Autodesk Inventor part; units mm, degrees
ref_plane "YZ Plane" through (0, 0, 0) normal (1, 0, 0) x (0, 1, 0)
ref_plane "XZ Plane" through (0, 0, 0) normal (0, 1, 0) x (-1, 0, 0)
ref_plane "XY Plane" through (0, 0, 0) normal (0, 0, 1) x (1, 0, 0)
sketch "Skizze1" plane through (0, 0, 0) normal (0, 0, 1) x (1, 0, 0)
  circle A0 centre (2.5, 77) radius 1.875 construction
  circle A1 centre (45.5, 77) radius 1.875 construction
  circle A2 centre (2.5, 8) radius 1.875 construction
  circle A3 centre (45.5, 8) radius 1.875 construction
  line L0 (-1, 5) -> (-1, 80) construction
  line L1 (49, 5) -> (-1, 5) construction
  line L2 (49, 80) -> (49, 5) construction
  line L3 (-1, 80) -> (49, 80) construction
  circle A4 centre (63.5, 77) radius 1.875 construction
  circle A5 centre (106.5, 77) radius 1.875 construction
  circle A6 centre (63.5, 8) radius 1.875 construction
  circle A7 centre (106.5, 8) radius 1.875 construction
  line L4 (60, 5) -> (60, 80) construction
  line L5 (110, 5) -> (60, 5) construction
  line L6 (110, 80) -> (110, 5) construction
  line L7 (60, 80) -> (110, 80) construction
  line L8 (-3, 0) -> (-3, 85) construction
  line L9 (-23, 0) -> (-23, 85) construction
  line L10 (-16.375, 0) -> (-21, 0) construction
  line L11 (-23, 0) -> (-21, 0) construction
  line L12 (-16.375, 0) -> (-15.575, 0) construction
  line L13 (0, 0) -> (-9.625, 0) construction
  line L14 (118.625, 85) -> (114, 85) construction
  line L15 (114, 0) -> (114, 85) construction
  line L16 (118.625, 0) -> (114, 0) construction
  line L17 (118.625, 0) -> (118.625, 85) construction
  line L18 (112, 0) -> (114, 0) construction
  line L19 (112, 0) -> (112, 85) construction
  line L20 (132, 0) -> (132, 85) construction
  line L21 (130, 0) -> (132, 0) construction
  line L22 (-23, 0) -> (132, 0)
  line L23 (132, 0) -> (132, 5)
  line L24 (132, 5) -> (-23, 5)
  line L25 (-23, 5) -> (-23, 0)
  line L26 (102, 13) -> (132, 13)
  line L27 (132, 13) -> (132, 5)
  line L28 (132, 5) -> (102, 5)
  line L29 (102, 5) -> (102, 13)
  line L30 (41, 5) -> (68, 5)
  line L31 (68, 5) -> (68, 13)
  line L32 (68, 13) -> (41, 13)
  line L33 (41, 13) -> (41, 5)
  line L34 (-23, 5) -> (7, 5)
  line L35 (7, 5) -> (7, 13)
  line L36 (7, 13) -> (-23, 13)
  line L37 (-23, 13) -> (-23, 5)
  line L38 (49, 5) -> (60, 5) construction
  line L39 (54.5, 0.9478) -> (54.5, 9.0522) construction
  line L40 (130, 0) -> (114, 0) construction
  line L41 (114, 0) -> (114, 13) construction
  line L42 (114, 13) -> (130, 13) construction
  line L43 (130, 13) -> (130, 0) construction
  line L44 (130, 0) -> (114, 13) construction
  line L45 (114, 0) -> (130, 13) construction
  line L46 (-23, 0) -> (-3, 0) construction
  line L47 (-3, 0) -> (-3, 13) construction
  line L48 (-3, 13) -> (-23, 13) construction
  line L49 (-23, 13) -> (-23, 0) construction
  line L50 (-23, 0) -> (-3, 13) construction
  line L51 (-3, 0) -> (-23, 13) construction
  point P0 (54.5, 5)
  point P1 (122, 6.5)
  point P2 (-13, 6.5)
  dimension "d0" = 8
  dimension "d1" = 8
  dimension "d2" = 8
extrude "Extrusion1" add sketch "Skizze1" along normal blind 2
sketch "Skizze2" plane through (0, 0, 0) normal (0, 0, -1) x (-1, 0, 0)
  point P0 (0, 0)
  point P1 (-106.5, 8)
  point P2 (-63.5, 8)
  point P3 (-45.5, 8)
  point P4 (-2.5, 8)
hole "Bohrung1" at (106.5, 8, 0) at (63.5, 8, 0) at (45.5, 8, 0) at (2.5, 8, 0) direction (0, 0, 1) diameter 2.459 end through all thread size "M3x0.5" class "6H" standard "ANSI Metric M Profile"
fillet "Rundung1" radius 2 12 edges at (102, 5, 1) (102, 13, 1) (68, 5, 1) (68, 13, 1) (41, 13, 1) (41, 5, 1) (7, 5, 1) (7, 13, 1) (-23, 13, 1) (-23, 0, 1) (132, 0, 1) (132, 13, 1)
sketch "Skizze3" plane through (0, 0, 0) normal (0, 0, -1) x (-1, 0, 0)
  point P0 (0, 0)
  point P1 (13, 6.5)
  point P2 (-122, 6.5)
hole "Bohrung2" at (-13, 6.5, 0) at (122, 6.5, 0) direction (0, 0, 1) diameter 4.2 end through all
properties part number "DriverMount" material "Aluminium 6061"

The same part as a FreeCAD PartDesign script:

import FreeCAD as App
import Part
import Sketcher
from FreeCAD import Vector


def edges_at(feature, points):
    """Names of the edges that pass closest to the given points."""
    edges = feature.Shape.Edges
    near = lambda p: min(range(len(edges)), key=lambda i: edges[i].distToShape(Part.Vertex(*p))[0])
    return sorted({f"Edge{near(p) + 1}" for p in points})

doc = App.newDocument("Part")
params = doc.addObject("Spreadsheet::Sheet", "Params")
for row, (alias, value) in enumerate([
    ("sketch1_height", "8 mm"),
    ("sketch1_width", "155 mm"),
    ("sketch1_width2", "30 mm"),
    ("sketch1_width3", "34 mm"),
    ("sketch1_height2", "13 mm"),
    ("pad1_length", "2 mm"),
    ("hole_diameter", "2.459 mm"),
    ("fillet_radius", "2 mm"),
    ("sketch3_diameter", "4.2 mm"),
    ("hole2_diameter", "4.2 mm"),
], start=1):
    params.set(f"A{row}", alias)
    params.set(f"B{row}", "=" + value)
    params.setAlias(f"B{row}", alias)

body = doc.addObject("PartDesign::Body", "Body")

sketch1 = doc.addObject("Sketcher::SketchObject", "Sketch")
body.addObject(sketch1)
sketch1.AttachmentSupport = (doc.XY_Plane, [""])
sketch1.MapMode = "FlatFace"
sketch1.addGeometry(Part.LineSegment(Vector(-23, 0, 0), Vector(132, 0, 0)), False)
sketch1.addGeometry(Part.LineSegment(Vector(132, 0, 0), Vector(132, 13, 0)), False)
sketch1.addGeometry(Part.LineSegment(Vector(132, 13, 0), Vector(102, 13, 0)), False)
sketch1.addGeometry(Part.LineSegment(Vector(102, 13, 0), Vector(102, 5, 0)), False)
sketch1.addGeometry(Part.LineSegment(Vector(102, 5, 0), Vector(68, 5, 0)), False)
sketch1.addGeometry(Part.LineSegment(Vector(68, 5, 0), Vector(68, 13, 0)), False)
sketch1.addGeometry(Part.LineSegment(Vector(68, 13, 0), Vector(41, 13, 0)), False)
sketch1.addGeometry(Part.LineSegment(Vector(41, 13, 0), Vector(41, 5, 0)), False)
sketch1.addGeometry(Part.LineSegment(Vector(41, 5, 0), Vector(7, 5, 0)), False)
sketch1.addGeometry(Part.LineSegment(Vector(7, 5, 0), Vector(7, 13, 0)), False)
sketch1.addGeometry(Part.LineSegment(Vector(7, 13, 0), Vector(-23, 13, 0)), False)
sketch1.addGeometry(Part.LineSegment(Vector(-23, 13, 0), Vector(-23, 0, 0)), False)
sketch1.addConstraint(Sketcher.Constraint("Coincident", 0, 2, 1, 1))
sketch1.addConstraint(Sketcher.Constraint("Coincident", 1, 2, 2, 1))
sketch1.addConstraint(Sketcher.Constraint("Coincident", 2, 2, 3, 1))
sketch1.addConstraint(Sketcher.Constraint("Coincident", 3, 2, 4, 1))
sketch1.addConstraint(Sketcher.Constraint("Coincident", 4, 2, 5, 1))
sketch1.addConstraint(Sketcher.Constraint("Coincident", 5, 2, 6, 1))
sketch1.addConstraint(Sketcher.Constraint("Coincident", 6, 2, 7, 1))
sketch1.addConstraint(Sketcher.Constraint("Coincident", 7, 2, 8, 1))
sketch1.addConstraint(Sketcher.Constraint("Coincident", 8, 2, 9, 1))
sketch1.addConstraint(Sketcher.Constraint("Coincident", 9, 2, 10, 1))
sketch1.addConstraint(Sketcher.Constraint("Coincident", 10, 2, 11, 1))
sketch1.addConstraint(Sketcher.Constraint("Coincident", 11, 2, 0, 1))
sketch1.addConstraint(Sketcher.Constraint("Horizontal", 0))
sketch1.addConstraint(Sketcher.Constraint("Vertical", 1))
sketch1.addConstraint(Sketcher.Constraint("Horizontal", 2))
sketch1.addConstraint(Sketcher.Constraint("Vertical", 3))
sketch1.addConstraint(Sketcher.Constraint("Horizontal", 4))
sketch1.addConstraint(Sketcher.Constraint("Vertical", 5))
sketch1.addConstraint(Sketcher.Constraint("Horizontal", 6))
sketch1.addConstraint(Sketcher.Constraint("Vertical", 7))
sketch1.addConstraint(Sketcher.Constraint("Horizontal", 8))
sketch1.addConstraint(Sketcher.Constraint("Vertical", 9))
sketch1.addConstraint(Sketcher.Constraint("Horizontal", 10))
sketch1.addConstraint(Sketcher.Constraint("Vertical", 11))
sketch1.addConstraint(Sketcher.Constraint("PointOnObject", 0, 2, -1))
sketch1.addConstraint(Sketcher.Constraint("Horizontal", 2, 2, 5, 2))
sketch1.addConstraint(Sketcher.Constraint("Horizontal", 4, 2, 7, 2))
sketch1.addConstraint(Sketcher.Constraint("Horizontal", 6, 2, 9, 2))
sketch1.addConstraint(Sketcher.Constraint("Equal", 4, 8))
sketch1.addConstraint(Sketcher.Constraint("Equal", 2, 10))
sketch1.addConstraint(Sketcher.Constraint("DistanceY", 3, 2, 3, 1, 8.0))
sketch1.addConstraint(Sketcher.Constraint("DistanceX", 0, 1, 0, 2, 155.0))
sketch1.addConstraint(Sketcher.Constraint("DistanceX", 2, 2, 2, 1, 30.0))
sketch1.addConstraint(Sketcher.Constraint("DistanceX", 4, 2, 4, 1, 34.0))
sketch1.addConstraint(Sketcher.Constraint("DistanceY", 1, 1, 1, 2, 13.0))
sketch1.addConstraint(Sketcher.Constraint("DistanceX", -1, 1, 0, 2, 132.0))
sketch1.setExpression("Constraints[30]", "Params.sketch1_height")
sketch1.setExpression("Constraints[31]", "Params.sketch1_width")
sketch1.setExpression("Constraints[32]", "Params.sketch1_width2")
sketch1.setExpression("Constraints[33]", "Params.sketch1_width3")
sketch1.setExpression("Constraints[34]", "Params.sketch1_height2")
pad1 = doc.addObject("PartDesign::Pad", "Pad")
body.addObject(pad1)
pad1.Profile = sketch1
pad1.setExpression("Length", "Params.pad1_length")

sketch2 = doc.addObject("Sketcher::SketchObject", "Sketch001")
body.addObject(sketch2)
sketch2.AttachmentSupport = (doc.XY_Plane, [""])
sketch2.MapMode = "FlatFace"
sketch2.addGeometry(Part.Circle(Vector(106.5, 8, 0), Vector(0, 0, 1), 1.2), False)
sketch2.addGeometry(Part.Circle(Vector(63.5, 8, 0), Vector(0, 0, 1), 1.2), False)
sketch2.addGeometry(Part.Circle(Vector(45.5, 8, 0), Vector(0, 0, 1), 1.2), False)
sketch2.addGeometry(Part.Circle(Vector(2.5, 8, 0), Vector(0, 0, 1), 1.2), False)
sketch2.addConstraint(Sketcher.Constraint("Equal", 0, 1))
sketch2.addConstraint(Sketcher.Constraint("Equal", 1, 2))
sketch2.addConstraint(Sketcher.Constraint("Equal", 2, 3))
sketch2.addConstraint(Sketcher.Constraint("Horizontal", 0, 3, 1, 3))
sketch2.addConstraint(Sketcher.Constraint("Horizontal", 1, 3, 2, 3))
sketch2.addConstraint(Sketcher.Constraint("Horizontal", 2, 3, 3, 3))
sketch2.addConstraint(Sketcher.Constraint("Diameter", 0, 2.459))
sketch2.addConstraint(Sketcher.Constraint("DistanceY", -1, 1, 0, 3, 8.0))
sketch2.addConstraint(Sketcher.Constraint("DistanceX", 1, 3, 0, 3, 43.0))
sketch2.addConstraint(Sketcher.Constraint("DistanceX", 2, 3, 1, 3, 18.0))
sketch2.addConstraint(Sketcher.Constraint("DistanceX", 3, 3, 2, 3, 43.0))
sketch2.addConstraint(Sketcher.Constraint("DistanceX", -1, 1, 0, 3, 106.5))
doc.recompute()
hole = doc.addObject("PartDesign::Hole", "Hole")
body.addObject(hole)
hole.Profile = sketch2
hole.ThreadType = "None"
hole.setExpression("Diameter", "Params.hole_diameter")
hole.DepthType = "ThroughAll"
hole.Reversed = True
doc.recompute()

fillet = doc.addObject("PartDesign::Fillet", "Fillet")
body.addObject(fillet)
fillet.Base = (hole, edges_at(hole, [
    (102, 5, 1),
    (102, 13, 1),
    (68, 5, 1),
    (68, 13, 1),
    (41, 13, 1),
    (41, 5, 1),
    (7, 5, 1),
    (7, 13, 1),
    (-23, 13, 1),
    (-23, 0, 1),
    (132, 0, 1),
    (132, 13, 1),
]))
fillet.setExpression("Radius", "Params.fillet_radius")

sketch3 = doc.addObject("Sketcher::SketchObject", "Sketch002")
body.addObject(sketch3)
sketch3.AttachmentSupport = (doc.XY_Plane, [""])
sketch3.MapMode = "FlatFace"
sketch3.addGeometry(Part.Circle(Vector(-13, 6.5, 0), Vector(0, 0, 1), 2.1), False)
sketch3.addGeometry(Part.Circle(Vector(122, 6.5, 0), Vector(0, 0, 1), 2.1), False)
sketch3.addConstraint(Sketcher.Constraint("Equal", 0, 1))
sketch3.addConstraint(Sketcher.Constraint("Horizontal", 0, 3, 1, 3))
sketch3.addConstraint(Sketcher.Constraint("Diameter", 0, 4.2))
sketch3.addConstraint(Sketcher.Constraint("DistanceX", 0, 3, -1, 1, 13.0))
sketch3.addConstraint(Sketcher.Constraint("DistanceX", -1, 1, 1, 3, 122.0))
sketch3.addConstraint(Sketcher.Constraint("DistanceY", -1, 1, 0, 3, 6.5))
sketch3.setExpression("Constraints[2]", "Params.sketch3_diameter")
doc.recompute()
hole2 = doc.addObject("PartDesign::Hole", "Hole001")
body.addObject(hole2)
hole2.Profile = sketch3
hole2.ThreadType = "None"
hole2.setExpression("Diameter", "Params.hole2_diameter")
hole2.DepthType = "ThroughAll"
hole2.Reversed = True

doc.recompute()
